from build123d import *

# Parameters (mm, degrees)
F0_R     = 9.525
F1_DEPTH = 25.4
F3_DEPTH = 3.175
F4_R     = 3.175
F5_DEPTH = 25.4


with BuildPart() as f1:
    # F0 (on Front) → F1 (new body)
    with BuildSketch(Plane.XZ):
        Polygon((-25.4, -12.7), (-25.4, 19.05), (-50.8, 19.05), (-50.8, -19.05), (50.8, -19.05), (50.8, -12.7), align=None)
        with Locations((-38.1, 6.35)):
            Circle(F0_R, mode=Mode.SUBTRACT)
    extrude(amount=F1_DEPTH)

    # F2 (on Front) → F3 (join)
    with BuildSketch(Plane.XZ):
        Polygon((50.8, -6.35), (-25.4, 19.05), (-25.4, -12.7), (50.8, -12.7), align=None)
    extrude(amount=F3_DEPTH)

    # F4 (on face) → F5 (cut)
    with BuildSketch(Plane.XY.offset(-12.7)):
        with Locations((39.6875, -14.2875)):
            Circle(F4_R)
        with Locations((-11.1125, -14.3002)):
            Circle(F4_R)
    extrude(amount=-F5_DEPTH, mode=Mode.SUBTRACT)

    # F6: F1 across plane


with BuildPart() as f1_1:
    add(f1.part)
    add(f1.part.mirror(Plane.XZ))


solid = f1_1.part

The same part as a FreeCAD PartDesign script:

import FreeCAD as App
import Part
import Sketcher

V = App.Vector
Q = App.Units.Quantity

doc = App.newDocument("Part")
body = doc.addObject("PartDesign::Body", "Body")

# Sketch on XZ plane
sketch1 = doc.addObject("Sketcher::SketchObject", "Sketch")
body.addObject(sketch1)
sketch1.AttachmentSupport = (doc.XZ_Plane, [""])
sketch1.MapMode = "FlatFace"
sketch1.addGeometry([
    Part.LineSegment(V(-25, -13, 0), V(-25, 19, 0)),  # 0
    Part.LineSegment(V(-25, 19, 0), V(-51, 19, 0)),  # 1
    Part.LineSegment(V(-51, 19, 0), V(-51, -19, 0)),  # 2
    Part.LineSegment(V(-51, -19, 0), V(51, -19, 0)),  # 3
    Part.LineSegment(V(51, -19, 0), V(51, -13, 0)),  # 4
    Part.LineSegment(V(51, -13, 0), V(-25, -13, 0)),  # 5
    Part.Circle(V(-38, 6, 0), V(0, 0, 1), 10),  # 6
], False)
sketch1.addConstraint([
    Sketcher.Constraint("Coincident", 0, 2, 1, 1),
    Sketcher.Constraint("Coincident", 1, 2, 2, 1),
    Sketcher.Constraint("Coincident", 2, 2, 3, 1),
    Sketcher.Constraint("Coincident", 3, 2, 4, 1),
    Sketcher.Constraint("Coincident", 4, 2, 5, 1),
    Sketcher.Constraint("Coincident", 5, 2, 0, 1),
    Sketcher.Constraint("Vertical", 0),
    Sketcher.Constraint("Horizontal", 1),
    Sketcher.Constraint("Vertical", 2),
    Sketcher.Constraint("Horizontal", 3),
    Sketcher.Constraint("Vertical", 4),
    Sketcher.Constraint("Horizontal", 5),
    Sketcher.Constraint("Symmetric", 1, 2, 3, 2, -1, 1),
    Sketcher.Constraint("Diameter", 6, Q("0.75 in")),
    Sketcher.Constraint("DistanceX", 1, 2, 1, 1, Q("1 in")),
    Sketcher.Constraint("DistanceX", 3, 1, 3, 2, Q("4 in")),
    Sketcher.Constraint("DistanceY", 2, 2, 2, 1, Q("1.5 in")),
    Sketcher.Constraint("DistanceY", 2, 2, 6, 3, Q("1 in")),
    Sketcher.Constraint("DistanceY", 0, 1, 0, 2, Q("1.25 in")),
    Sketcher.Constraint("DistanceX", 6, 3, -1, 1, Q("1.5 in")),
])
pad1 = doc.addObject("PartDesign::Pad", "Pad")
body.addObject(pad1)
pad1.Profile = sketch1
pad1.Length = Q("1 in")

# Sketch on XZ plane
sketch2 = doc.addObject("Sketcher::SketchObject", "Sketch001")
body.addObject(sketch2)
sketch2.AttachmentSupport = (doc.XZ_Plane, [""])
sketch2.MapMode = "FlatFace"
sketch2.addGeometry([
    Part.LineSegment(V(51, -6, 0), V(-25, 19, 0)),
    Part.LineSegment(V(-25, 19, 0), V(-25, -13, 0)),
    Part.LineSegment(V(-25, -13, 0), V(51, -13, 0)),
    Part.LineSegment(V(51, -13, 0), V(51, -6, 0)),
], False)
sketch2.addConstraint([
    Sketcher.Constraint("Coincident", 0, 2, 1, 1),
    Sketcher.Constraint("Coincident", 1, 2, 2, 1),
    Sketcher.Constraint("Coincident", 2, 2, 3, 1),
    Sketcher.Constraint("Coincident", 3, 2, 0, 1),
    Sketcher.Constraint("Vertical", 1),
    Sketcher.Constraint("Horizontal", 2),
    Sketcher.Constraint("Vertical", 3),
    Sketcher.Constraint("DistanceX", 2, 1, 2, 2, Q("3 in")),
    Sketcher.Constraint("DistanceX", 0, 2, -1, 1, Q("1 in")),
    Sketcher.Constraint("DistanceY", 3, 2, 0, 2, Q("1 in")),
    Sketcher.Constraint("DistanceY", 1, 2, 1, 1, Q("1.25 in")),
    Sketcher.Constraint("DistanceY", 1, 2, -1, 1, Q("0.5 in")),
])
pad2 = doc.addObject("PartDesign::Pad", "Pad001")
body.addObject(pad2)
pad2.Profile = sketch2
pad2.Length = Q("0.125 in")

# Sketch on XY plane
sketch3 = doc.addObject("Sketcher::SketchObject", "Sketch002")
body.addObject(sketch3)
sketch3.AttachmentSupport = (doc.XY_Plane, [""])
sketch3.MapMode = "FlatFace"
sketch3.AttachmentOffset = App.Placement(V(0, 0, -0.5 * 25.4), App.Rotation())
sketch3.addGeometry([
    Part.Circle(V(39.7, -14.3, 0), V(0, 0, 1), 3.2),
    Part.Circle(V(-11.1, -14.3, 0), V(0, 0, 1), 3.2),
], False)
sketch3.addConstraint([
    Sketcher.Constraint("Equal", 0, 1),
    Sketcher.Constraint("Diameter", 0, Q("0.25 in")),
    Sketcher.Constraint("DistanceX", 1, 3, 0, 3, Q("2 in")),
    Sketcher.Constraint("DistanceX", -1, 1, 0, 3, Q("1.5625 in")),
    Sketcher.Constraint("DistanceY", 0, 3, -1, 1, Q("0.5625 in")),
    Sketcher.Constraint("DistanceY", 1, 3, -1, 1, Q("0.563 in")),
])
pocket1 = doc.addObject("PartDesign::Pocket", "Pocket")
body.addObject(pocket1)
pocket1.Profile = sketch3
pocket1.Length = Q("1 in")
body2 = doc.addObject("PartDesign::Body", "Body001")
doc.recompute()

body2.BaseFeature = body
doc.recompute()

mirroring = doc.addObject("Part::Mirroring", "Mirroring")
mirroring.Source = body
mirroring.Base = V(0, 0, 0)
mirroring.Normal = V(0, -1, 0)
body3 = doc.addObject("PartDesign::Body", "Body002")
body3.BaseFeature = mirroring
boolean = doc.addObject("PartDesign::Boolean", "Boolean")
body2.addObject(boolean)
boolean.Type = "Fuse"
boolean.addObjects([body3])
doc.recompute()
mirroring.Visibility = False

doc.recompute()
